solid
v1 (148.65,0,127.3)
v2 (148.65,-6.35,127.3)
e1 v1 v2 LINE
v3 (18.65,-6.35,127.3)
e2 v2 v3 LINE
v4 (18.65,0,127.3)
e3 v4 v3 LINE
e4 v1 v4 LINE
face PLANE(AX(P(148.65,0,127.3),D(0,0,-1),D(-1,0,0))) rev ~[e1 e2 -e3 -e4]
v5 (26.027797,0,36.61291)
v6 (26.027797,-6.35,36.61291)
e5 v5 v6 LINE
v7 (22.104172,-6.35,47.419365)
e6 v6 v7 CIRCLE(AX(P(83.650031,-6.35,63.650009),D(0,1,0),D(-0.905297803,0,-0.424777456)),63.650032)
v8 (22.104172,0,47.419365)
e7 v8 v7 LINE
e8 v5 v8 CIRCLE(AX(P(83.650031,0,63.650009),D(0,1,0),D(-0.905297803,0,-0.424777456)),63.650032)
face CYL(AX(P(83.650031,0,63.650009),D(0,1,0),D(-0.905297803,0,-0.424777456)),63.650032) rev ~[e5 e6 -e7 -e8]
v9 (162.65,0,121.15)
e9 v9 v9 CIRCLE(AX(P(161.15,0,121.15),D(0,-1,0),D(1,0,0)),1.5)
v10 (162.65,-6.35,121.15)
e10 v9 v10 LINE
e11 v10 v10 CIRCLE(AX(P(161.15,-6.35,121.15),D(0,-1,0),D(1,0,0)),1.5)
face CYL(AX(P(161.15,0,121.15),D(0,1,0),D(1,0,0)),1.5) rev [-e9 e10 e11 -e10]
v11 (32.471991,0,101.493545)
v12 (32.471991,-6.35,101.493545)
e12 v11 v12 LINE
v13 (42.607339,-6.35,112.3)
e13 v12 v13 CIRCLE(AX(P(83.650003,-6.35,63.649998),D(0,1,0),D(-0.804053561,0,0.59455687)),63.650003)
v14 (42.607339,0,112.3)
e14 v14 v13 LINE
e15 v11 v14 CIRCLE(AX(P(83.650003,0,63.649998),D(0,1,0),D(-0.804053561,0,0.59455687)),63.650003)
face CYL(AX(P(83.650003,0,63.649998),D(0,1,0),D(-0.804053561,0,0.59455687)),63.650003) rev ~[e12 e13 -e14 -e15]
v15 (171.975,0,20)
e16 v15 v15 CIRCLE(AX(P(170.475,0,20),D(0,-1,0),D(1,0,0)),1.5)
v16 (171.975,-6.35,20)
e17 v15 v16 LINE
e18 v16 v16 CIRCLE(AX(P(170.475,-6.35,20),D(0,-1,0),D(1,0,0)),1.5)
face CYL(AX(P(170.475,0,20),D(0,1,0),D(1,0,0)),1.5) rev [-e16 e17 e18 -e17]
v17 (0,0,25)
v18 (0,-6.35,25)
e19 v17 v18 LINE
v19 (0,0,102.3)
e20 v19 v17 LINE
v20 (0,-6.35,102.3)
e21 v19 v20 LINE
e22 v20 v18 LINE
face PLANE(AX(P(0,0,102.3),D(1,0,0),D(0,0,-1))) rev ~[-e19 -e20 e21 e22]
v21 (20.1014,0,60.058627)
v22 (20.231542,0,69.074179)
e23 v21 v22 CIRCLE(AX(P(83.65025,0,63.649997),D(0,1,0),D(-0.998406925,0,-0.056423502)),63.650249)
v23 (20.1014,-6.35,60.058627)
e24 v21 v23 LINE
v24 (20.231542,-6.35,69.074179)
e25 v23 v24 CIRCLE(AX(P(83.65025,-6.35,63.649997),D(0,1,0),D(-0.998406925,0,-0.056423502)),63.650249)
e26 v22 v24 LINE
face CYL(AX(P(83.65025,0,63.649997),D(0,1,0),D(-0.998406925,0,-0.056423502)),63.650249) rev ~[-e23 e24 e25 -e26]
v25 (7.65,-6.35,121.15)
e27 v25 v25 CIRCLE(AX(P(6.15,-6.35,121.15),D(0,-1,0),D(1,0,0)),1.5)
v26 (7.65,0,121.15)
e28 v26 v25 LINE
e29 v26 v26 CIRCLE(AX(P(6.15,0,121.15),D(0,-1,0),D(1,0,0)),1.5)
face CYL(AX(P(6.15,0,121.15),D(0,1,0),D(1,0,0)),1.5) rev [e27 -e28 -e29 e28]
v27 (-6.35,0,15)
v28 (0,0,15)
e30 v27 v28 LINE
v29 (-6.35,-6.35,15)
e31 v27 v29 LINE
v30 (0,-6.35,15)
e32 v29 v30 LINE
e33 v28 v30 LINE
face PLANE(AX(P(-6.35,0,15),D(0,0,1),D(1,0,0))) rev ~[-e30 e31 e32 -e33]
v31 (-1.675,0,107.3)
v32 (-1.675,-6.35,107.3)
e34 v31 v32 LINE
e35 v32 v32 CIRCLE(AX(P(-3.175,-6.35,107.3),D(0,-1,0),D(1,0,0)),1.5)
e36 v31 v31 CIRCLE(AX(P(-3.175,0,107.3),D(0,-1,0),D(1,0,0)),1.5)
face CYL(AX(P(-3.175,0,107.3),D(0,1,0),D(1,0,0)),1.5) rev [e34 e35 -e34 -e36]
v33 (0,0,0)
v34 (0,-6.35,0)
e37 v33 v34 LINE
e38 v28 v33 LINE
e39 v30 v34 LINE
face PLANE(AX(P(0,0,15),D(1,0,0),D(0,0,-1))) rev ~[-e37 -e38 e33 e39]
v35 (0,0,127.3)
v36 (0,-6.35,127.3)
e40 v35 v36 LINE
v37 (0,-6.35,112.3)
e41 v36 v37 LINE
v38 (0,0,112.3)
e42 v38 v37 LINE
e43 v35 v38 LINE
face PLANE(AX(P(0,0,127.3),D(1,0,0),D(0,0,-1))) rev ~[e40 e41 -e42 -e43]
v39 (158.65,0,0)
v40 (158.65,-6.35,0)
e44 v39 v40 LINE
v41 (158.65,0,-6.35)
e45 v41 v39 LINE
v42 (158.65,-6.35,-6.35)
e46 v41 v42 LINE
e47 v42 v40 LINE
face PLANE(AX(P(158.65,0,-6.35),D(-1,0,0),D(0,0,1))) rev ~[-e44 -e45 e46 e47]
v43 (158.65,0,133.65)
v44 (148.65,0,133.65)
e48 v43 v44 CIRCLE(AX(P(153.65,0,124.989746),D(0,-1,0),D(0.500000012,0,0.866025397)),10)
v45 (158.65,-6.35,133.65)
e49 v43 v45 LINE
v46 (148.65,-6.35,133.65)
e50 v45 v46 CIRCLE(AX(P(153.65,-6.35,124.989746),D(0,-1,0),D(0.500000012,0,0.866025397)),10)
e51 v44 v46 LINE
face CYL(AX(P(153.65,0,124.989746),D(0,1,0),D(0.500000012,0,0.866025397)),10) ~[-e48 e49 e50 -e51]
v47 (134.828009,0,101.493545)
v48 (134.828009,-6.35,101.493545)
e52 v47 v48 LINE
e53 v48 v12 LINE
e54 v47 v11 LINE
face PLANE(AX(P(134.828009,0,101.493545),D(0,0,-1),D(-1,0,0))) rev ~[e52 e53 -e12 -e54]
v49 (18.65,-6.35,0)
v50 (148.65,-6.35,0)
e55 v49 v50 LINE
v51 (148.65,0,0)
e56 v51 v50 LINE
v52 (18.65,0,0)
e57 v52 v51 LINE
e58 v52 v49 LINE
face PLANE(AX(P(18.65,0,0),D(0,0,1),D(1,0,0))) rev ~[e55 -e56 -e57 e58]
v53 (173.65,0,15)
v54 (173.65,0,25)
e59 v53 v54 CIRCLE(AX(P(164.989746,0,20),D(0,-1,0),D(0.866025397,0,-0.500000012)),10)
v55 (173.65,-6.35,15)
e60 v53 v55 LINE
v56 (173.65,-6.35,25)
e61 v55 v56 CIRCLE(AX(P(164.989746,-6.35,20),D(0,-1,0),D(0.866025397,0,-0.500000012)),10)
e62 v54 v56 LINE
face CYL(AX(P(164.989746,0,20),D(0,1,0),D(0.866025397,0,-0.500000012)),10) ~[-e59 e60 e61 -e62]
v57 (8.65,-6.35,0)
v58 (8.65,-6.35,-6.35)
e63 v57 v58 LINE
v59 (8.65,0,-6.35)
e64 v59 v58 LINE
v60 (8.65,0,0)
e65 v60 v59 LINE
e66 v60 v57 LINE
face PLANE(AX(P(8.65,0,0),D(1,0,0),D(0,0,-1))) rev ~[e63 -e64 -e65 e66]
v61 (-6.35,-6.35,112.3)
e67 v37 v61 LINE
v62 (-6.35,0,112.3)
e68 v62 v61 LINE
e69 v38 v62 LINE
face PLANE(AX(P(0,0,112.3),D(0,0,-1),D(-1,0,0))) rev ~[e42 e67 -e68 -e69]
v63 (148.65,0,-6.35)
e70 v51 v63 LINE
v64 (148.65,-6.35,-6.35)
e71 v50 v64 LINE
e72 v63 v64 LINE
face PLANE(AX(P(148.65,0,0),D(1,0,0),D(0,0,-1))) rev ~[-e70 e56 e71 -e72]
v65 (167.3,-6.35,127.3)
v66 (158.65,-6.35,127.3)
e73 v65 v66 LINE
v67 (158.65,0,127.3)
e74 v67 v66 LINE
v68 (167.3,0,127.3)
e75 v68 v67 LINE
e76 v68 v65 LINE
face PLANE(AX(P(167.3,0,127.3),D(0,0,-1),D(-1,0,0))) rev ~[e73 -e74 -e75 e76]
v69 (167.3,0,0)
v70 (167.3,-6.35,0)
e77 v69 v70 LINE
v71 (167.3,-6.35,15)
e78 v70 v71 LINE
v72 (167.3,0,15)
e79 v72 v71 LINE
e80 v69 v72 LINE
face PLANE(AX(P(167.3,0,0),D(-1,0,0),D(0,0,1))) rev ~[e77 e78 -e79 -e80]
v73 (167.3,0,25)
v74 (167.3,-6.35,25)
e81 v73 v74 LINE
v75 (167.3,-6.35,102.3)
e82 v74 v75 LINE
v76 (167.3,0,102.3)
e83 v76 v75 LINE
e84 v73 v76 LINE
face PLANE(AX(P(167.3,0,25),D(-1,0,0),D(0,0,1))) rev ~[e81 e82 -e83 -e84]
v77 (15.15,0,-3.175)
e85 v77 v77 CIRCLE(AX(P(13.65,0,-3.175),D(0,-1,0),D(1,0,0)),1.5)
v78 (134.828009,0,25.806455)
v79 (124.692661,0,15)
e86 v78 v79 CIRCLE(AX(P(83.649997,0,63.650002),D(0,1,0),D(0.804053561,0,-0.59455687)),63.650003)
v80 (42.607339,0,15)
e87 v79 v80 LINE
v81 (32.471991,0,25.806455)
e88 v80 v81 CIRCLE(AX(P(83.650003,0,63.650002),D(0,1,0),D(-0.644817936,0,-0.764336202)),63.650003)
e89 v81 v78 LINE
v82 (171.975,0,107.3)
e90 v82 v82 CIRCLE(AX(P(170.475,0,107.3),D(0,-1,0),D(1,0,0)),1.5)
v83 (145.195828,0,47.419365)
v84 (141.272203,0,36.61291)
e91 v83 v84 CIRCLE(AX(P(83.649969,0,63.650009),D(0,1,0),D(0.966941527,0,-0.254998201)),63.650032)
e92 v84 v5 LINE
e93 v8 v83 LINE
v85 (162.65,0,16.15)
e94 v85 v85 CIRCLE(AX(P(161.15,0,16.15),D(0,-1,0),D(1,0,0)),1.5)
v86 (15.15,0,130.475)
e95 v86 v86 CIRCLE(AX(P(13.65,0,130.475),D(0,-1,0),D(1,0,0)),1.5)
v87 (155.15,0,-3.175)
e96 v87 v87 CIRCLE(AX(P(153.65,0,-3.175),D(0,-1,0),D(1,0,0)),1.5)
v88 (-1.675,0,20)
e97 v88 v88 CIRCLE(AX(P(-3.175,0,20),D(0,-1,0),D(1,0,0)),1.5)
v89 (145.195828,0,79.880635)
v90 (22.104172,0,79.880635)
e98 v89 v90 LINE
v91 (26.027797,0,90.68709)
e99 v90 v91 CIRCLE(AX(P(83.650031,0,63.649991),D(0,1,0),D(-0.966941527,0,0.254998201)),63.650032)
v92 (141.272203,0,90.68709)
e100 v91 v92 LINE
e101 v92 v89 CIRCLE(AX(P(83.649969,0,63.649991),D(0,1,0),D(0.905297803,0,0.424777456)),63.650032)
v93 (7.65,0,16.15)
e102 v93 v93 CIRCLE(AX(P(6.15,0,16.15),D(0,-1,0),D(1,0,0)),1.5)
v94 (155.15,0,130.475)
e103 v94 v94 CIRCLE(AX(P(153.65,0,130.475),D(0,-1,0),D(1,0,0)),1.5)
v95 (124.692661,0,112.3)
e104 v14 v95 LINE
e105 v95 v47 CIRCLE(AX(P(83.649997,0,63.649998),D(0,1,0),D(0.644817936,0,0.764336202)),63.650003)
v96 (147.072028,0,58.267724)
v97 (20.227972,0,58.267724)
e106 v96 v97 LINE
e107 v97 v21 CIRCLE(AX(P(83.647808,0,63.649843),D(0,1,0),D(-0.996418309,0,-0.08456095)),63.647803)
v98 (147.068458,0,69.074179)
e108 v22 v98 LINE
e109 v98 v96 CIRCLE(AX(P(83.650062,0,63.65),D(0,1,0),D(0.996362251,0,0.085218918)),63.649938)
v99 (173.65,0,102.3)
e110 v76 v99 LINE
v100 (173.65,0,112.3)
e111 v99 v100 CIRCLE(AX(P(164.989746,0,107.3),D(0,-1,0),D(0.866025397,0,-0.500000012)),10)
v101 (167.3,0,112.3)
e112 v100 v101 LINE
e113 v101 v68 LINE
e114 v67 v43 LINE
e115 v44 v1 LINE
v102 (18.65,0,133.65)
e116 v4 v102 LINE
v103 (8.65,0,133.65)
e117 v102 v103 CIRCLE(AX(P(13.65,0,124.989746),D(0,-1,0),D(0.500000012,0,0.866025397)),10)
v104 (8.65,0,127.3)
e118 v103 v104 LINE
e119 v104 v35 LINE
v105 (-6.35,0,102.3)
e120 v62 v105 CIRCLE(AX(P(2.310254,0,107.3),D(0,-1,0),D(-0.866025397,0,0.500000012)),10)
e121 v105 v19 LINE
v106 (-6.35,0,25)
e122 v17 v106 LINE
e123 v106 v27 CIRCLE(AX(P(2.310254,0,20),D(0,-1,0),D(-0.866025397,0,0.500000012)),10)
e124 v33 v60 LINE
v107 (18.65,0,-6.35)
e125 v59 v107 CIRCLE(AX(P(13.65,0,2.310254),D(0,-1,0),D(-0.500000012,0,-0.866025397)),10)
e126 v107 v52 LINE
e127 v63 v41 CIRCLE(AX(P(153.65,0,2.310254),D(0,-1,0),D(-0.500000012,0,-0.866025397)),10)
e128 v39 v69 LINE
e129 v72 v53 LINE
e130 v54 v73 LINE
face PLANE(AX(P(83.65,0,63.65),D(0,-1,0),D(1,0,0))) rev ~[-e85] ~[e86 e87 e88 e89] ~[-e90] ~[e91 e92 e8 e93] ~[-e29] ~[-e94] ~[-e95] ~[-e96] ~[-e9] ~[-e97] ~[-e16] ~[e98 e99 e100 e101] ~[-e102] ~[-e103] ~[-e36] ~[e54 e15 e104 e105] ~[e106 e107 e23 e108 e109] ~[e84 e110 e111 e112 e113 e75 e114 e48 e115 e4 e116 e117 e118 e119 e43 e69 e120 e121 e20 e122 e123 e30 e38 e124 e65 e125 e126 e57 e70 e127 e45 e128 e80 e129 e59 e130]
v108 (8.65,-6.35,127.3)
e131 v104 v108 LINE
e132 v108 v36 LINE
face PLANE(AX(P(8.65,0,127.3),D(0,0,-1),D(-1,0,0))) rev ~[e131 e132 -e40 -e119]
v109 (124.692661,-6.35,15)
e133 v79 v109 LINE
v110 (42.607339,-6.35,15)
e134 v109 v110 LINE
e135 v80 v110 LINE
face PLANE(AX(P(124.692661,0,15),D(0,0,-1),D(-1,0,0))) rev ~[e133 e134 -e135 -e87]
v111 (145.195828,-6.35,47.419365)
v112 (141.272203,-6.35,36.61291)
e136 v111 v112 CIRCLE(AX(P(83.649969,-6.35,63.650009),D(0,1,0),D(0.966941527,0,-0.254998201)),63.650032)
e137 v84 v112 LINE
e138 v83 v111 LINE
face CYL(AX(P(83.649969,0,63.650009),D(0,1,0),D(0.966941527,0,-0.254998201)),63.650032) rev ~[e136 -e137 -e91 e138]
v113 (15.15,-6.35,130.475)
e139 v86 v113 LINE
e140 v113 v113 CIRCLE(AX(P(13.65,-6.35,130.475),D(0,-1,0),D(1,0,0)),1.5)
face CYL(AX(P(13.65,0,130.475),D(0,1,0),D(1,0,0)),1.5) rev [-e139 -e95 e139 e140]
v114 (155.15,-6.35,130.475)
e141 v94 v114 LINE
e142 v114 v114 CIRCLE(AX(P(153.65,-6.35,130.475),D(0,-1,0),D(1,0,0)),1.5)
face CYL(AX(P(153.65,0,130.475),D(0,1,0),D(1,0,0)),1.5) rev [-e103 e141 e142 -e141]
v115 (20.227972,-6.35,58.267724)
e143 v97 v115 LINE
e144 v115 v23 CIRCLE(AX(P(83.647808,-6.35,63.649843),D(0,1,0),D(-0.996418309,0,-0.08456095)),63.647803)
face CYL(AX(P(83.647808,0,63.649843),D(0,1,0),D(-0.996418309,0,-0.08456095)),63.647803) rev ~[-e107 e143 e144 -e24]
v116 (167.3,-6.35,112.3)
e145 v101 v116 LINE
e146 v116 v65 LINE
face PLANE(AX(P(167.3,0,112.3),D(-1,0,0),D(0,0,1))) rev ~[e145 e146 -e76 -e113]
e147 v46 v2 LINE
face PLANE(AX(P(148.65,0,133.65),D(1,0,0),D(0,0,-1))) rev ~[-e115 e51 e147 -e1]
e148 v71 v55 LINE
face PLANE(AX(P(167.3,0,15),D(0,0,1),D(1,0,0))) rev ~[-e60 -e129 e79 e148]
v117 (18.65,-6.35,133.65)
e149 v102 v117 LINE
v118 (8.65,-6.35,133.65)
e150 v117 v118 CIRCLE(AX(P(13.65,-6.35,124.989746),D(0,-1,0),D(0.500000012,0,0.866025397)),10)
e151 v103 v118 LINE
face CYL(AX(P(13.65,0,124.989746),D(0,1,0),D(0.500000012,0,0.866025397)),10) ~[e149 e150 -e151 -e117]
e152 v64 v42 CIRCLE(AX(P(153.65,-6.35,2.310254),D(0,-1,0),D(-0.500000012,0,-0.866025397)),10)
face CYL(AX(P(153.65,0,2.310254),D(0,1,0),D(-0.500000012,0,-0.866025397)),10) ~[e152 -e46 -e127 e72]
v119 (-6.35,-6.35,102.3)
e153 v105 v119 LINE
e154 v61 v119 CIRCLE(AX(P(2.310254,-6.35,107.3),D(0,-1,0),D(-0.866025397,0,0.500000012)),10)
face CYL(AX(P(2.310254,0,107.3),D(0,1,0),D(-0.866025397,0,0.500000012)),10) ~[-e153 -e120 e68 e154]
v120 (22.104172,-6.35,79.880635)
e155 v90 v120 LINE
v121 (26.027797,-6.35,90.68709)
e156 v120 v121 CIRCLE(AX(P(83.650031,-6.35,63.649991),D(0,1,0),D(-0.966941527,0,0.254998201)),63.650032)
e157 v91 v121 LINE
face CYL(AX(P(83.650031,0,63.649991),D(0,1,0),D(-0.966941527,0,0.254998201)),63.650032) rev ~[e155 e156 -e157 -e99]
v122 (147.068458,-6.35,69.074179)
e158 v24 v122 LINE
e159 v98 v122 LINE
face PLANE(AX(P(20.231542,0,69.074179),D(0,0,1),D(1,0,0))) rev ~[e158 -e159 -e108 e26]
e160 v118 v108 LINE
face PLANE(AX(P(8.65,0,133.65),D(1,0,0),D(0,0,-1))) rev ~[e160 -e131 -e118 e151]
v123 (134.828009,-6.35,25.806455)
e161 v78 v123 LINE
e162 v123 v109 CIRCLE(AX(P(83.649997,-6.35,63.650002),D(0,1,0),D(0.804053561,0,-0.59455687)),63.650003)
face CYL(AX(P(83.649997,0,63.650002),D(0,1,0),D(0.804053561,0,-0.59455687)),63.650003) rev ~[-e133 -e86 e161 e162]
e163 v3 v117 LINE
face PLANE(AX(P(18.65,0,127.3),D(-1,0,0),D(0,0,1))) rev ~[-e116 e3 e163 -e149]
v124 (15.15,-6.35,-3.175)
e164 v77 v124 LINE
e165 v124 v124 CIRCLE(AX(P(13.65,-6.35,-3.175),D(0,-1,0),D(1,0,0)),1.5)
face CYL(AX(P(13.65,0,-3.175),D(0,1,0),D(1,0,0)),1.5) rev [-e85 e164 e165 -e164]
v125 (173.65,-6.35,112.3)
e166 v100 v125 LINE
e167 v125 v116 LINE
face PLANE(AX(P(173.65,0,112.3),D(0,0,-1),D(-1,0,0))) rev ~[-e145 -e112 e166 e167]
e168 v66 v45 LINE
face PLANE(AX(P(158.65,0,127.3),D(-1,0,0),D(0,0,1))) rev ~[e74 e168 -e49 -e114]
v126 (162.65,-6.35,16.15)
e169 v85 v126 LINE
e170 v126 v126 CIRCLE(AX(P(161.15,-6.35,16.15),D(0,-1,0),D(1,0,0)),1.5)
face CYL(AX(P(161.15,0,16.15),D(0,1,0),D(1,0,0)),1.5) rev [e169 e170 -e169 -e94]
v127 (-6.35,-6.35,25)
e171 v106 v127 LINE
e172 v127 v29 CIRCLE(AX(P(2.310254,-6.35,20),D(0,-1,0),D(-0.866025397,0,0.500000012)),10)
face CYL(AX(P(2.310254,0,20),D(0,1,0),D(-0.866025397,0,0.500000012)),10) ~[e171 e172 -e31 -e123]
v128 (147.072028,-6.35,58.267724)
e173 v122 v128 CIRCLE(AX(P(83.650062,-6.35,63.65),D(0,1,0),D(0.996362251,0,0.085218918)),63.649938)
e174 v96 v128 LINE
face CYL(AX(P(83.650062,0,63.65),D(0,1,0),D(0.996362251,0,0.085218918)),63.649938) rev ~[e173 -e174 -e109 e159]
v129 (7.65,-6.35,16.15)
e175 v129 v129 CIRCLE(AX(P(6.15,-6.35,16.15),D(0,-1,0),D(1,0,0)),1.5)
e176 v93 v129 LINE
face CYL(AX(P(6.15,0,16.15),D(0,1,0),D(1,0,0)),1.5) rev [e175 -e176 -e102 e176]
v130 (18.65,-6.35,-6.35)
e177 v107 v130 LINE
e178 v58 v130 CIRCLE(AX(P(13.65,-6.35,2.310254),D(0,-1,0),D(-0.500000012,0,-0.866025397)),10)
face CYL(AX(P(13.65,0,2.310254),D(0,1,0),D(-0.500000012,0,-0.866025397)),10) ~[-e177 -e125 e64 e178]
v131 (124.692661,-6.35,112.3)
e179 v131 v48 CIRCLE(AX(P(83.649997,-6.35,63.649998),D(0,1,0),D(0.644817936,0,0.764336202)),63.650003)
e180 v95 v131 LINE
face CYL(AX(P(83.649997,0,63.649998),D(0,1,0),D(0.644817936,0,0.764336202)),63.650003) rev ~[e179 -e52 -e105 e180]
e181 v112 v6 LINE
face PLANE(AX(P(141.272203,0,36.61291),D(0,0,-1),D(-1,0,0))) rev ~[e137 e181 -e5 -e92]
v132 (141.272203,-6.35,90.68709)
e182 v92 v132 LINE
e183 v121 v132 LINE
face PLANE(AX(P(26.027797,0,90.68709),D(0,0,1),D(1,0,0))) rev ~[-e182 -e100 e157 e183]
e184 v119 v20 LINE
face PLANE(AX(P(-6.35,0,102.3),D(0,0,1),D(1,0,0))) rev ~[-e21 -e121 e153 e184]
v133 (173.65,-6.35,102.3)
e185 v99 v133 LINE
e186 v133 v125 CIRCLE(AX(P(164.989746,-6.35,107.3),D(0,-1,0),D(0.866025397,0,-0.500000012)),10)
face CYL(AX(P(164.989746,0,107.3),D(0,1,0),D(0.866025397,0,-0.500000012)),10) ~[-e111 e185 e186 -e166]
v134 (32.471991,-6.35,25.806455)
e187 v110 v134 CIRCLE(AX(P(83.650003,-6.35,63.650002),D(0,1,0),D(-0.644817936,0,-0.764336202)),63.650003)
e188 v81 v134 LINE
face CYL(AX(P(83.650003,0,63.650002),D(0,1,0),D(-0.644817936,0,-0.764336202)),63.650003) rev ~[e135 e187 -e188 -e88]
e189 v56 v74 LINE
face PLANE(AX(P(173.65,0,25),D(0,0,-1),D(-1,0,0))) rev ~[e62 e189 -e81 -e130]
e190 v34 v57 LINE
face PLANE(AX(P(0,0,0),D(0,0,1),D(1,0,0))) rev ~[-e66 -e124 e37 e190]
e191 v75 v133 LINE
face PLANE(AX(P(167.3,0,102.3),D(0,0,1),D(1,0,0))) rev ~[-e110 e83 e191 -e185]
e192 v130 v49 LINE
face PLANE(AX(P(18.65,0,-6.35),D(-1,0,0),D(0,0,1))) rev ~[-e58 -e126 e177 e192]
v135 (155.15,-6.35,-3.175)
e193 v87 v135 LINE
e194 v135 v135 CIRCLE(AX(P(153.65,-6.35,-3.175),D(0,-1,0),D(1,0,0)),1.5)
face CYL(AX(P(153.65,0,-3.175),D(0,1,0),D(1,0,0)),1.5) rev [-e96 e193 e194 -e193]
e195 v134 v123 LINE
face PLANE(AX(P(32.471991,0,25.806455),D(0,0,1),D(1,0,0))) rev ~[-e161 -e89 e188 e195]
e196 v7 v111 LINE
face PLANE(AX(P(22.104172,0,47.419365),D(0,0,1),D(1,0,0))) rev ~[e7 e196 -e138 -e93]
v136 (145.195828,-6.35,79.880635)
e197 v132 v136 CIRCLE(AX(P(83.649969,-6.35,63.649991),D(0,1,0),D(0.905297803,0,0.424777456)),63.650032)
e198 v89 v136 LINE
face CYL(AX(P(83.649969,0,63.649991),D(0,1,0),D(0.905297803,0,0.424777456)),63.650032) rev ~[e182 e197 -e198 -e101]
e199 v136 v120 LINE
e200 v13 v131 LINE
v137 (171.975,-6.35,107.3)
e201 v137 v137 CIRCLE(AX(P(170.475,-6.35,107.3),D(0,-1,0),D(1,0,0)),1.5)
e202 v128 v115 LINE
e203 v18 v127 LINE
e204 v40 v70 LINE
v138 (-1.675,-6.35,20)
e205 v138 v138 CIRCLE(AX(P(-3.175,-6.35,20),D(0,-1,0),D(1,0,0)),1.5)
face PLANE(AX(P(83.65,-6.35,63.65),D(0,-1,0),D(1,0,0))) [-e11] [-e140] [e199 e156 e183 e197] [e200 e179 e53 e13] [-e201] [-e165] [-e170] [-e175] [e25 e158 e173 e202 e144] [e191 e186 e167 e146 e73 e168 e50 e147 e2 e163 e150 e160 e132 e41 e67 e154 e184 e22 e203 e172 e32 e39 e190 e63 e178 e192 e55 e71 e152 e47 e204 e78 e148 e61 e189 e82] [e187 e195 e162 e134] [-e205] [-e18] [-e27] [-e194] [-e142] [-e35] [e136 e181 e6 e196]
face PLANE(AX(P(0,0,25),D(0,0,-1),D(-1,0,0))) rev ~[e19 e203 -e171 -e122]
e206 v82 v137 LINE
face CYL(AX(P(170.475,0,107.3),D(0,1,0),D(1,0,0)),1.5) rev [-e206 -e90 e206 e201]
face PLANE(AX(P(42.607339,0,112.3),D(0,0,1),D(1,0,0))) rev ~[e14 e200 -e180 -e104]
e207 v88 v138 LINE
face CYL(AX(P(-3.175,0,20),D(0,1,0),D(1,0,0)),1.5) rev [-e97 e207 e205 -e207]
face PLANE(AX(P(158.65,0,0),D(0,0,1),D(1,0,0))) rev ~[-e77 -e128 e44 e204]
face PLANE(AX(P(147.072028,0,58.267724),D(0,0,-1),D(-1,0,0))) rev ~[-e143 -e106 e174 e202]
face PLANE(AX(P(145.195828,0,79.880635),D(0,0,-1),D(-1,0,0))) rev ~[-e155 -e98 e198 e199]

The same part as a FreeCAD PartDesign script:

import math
import FreeCAD as App
import Part
import Sketcher

V = App.Vector
Q = App.Units.Quantity

doc = App.newDocument("Part")
params = doc.addObject("Spreadsheet::Sheet", "Params")
for row, (alias, value) in enumerate([
    ("sketch1_diameter", "3 mm"),
    ("sketch1_diameter2", "3 mm"),
    ("sketch1_diameter3", "3 mm"),
    ("sketch1_diameter4", "3 mm"),
    ("sketch1_diameter5", "3 mm"),
    ("pad1_length", "6.35 mm"),
], start=1):
    params.set(f"A{row}", alias)
    params.set(f"B{row}", "=" + value)
    params.setAlias(f"B{row}", alias)

body = doc.addObject("PartDesign::Body", "Body")

# Sketch on XZ plane
sketch1 = body.newObject("Sketcher::SketchObject", "Sketch")
sketch1.AttachmentSupport = (doc.getObject("XZ_Plane"), [""])
sketch1.MapMode = "FlatFace"
sketch1.addGeometry(Part.LineSegment(V(0, 15, 0), V(0, 0, 0)), False)
sketch1.addGeometry(Part.LineSegment(V(0, 0, 0), V(8.65, 0, 0)), False)
sketch1.addGeometry(Part.LineSegment(V(8.65, 0, 0), V(8.65, -6.35, 0)), False)
sketch1.addGeometry(Part.ArcOfCircle(Part.Circle(V(13.65, 2.310254, 0), V(0, 0, 1), 10), math.radians(-120.000001), math.radians(-59.999999)), False)
sketch1.addGeometry(Part.LineSegment(V(18.65, -6.35, 0), V(18.65, 0, 0)), False)
sketch1.addGeometry(Part.LineSegment(V(18.65, 0, 0), V(148.65, 0, 0)), False)
sketch1.addGeometry(Part.LineSegment(V(148.65, 0, 0), V(148.65, -6.35, 0)), False)
sketch1.addGeometry(Part.ArcOfCircle(Part.Circle(V(153.65, 2.310254, 0), V(0, 0, 1), 10), math.radians(-120.000001), math.radians(-59.999999)), False)
sketch1.addGeometry(Part.LineSegment(V(158.65, -6.35, 0), V(158.65, 0, 0)), False)
sketch1.addGeometry(Part.LineSegment(V(158.65, 0, 0), V(167.3, 0, 0)), False)
sketch1.addGeometry(Part.LineSegment(V(167.3, 0, 0), V(167.3, 15, 0)), False)
sketch1.addGeometry(Part.LineSegment(V(167.3, 15, 0), V(173.65, 15, 0)), False)
sketch1.addGeometry(Part.ArcOfCircle(Part.Circle(V(164.989746, 20, 0), V(0, 0, 1), 10), math.radians(-30.000001), math.radians(30.000001)), False)
sketch1.addGeometry(Part.LineSegment(V(173.65, 25, 0), V(167.3, 25, 0)), False)
sketch1.addGeometry(Part.LineSegment(V(167.3, 25, 0), V(167.3, 102.3, 0)), False)
sketch1.addGeometry(Part.LineSegment(V(167.3, 102.3, 0), V(173.65, 102.3, 0)), False)
sketch1.addGeometry(Part.ArcOfCircle(Part.Circle(V(164.989746, 107.3, 0), V(0, 0, 1), 10), math.radians(-30.000001), math.radians(30.000001)), False)
sketch1.addGeometry(Part.LineSegment(V(173.65, 112.3, 0), V(167.3, 112.3, 0)), False)
sketch1.addGeometry(Part.LineSegment(V(167.3, 112.3, 0), V(167.3, 127.3, 0)), False)
sketch1.addGeometry(Part.LineSegment(V(167.3, 127.3, 0), V(158.65, 127.3, 0)), False)
sketch1.addGeometry(Part.LineSegment(V(158.65, 127.3, 0), V(158.65, 133.65, 0)), False)
sketch1.addGeometry(Part.ArcOfCircle(Part.Circle(V(153.65, 124.989746, 0), V(0, 0, 1), 10), math.radians(59.999999), math.radians(120.000001)), False)
sketch1.addGeometry(Part.LineSegment(V(148.65, 133.65, 0), V(148.65, 127.3, 0)), False)
sketch1.addGeometry(Part.LineSegment(V(148.65, 127.3, 0), V(18.65, 127.3, 0)), False)
sketch1.addGeometry(Part.LineSegment(V(18.65, 127.3, 0), V(18.65, 133.65, 0)), False)
sketch1.addGeometry(Part.ArcOfCircle(Part.Circle(V(13.65, 124.989746, 0), V(0, 0, 1), 10), math.radians(59.999999), math.radians(120.000001)), False)
sketch1.addGeometry(Part.LineSegment(V(8.65, 133.65, 0), V(8.65, 127.3, 0)), False)
sketch1.addGeometry(Part.LineSegment(V(8.65, 127.3, 0), V(0, 127.3, 0)), False)
sketch1.addGeometry(Part.LineSegment(V(0, 127.3, 0), V(0, 112.3, 0)), False)
sketch1.addGeometry(Part.LineSegment(V(0, 112.3, 0), V(-6.35, 112.3, 0)), False)
sketch1.addGeometry(Part.ArcOfCircle(Part.Circle(V(2.310254, 107.3, 0), V(0, 0, 1), 10), math.radians(149.999999), math.radians(210.000001)), False)
sketch1.addGeometry(Part.LineSegment(V(-6.35, 102.3, 0), V(0, 102.3, 0)), False)
sketch1.addGeometry(Part.LineSegment(V(0, 102.3, 0), V(0, 25, 0)), False)
sketch1.addGeometry(Part.LineSegment(V(0, 25, 0), V(-6.35, 25, 0)), False)
sketch1.addGeometry(Part.ArcOfCircle(Part.Circle(V(2.310254, 20, 0), V(0, 0, 1), 10), math.radians(149.999999), math.radians(210.000001)), False)
sketch1.addGeometry(Part.LineSegment(V(-6.35, 15, 0), V(0, 15, 0)), False)
sketch1.addGeometry(Part.Circle(V(13.65, -3.175, 0), V(0, 0, 1), 1.5), False)
sketch1.addGeometry(Part.Circle(V(6.15, 16.15, 0), V(0, 0, 1), 1.5), False)
sketch1.addGeometry(Part.Circle(V(-3.175, 20, 0), V(0, 0, 1), 1.5), False)
sketch1.addGeometry(Part.ArcOfCircle(Part.Circle(V(83.650003, 63.650002, 0), V(0, 0, 1), 63.650003), math.radians(-143.518951), math.radians(-130.152026)), False)
sketch1.addGeometry(Part.LineSegment(V(32.471991, 25.806455, 0), V(134.828009, 25.806455, 0)), False)
sketch1.addGeometry(Part.ArcOfCircle(Part.Circle(V(83.649997, 63.650002, 0), V(0, 0, 1), 63.650003), math.radians(-49.847974), math.radians(-36.481049)), False)
sketch1.addGeometry(Part.LineSegment(V(124.692661, 15, 0), V(42.607339, 15, 0)), False)
sketch1.addGeometry(Part.Circle(V(153.65, -3.175, 0), V(0, 0, 1), 1.5), False)
sketch1.addGeometry(Part.Circle(V(161.15, 16.15, 0), V(0, 0, 1), 1.5), False)
sketch1.addGeometry(Part.Circle(V(170.475, 20, 0), V(0, 0, 1), 1.5), False)
sketch1.addGeometry(Part.ArcOfCircle(Part.Circle(V(83.650031, 63.650009, 0), V(0, 0, 1), 63.650032), math.radians(-165.226521), math.radians(-154.863422)), False)
sketch1.addGeometry(Part.LineSegment(V(22.104172, 47.419365, 0), V(145.195828, 47.419365, 0)), False)
sketch1.addGeometry(Part.ArcOfCircle(Part.Circle(V(83.649969, 63.650009, 0), V(0, 0, 1), 63.650032), math.radians(-25.136578), math.radians(-14.773479)), False)
sketch1.addGeometry(Part.LineSegment(V(141.272203, 36.61291, 0), V(26.027797, 36.61291, 0)), False)
sketch1.addGeometry(Part.Circle(V(-3.175, 107.3, 0), V(0, 0, 1), 1.5), False)
sketch1.addGeometry(Part.Circle(V(6.15, 121.15, 0), V(0, 0, 1), 1.5), False)
sketch1.addGeometry(Part.Circle(V(13.65, 130.475, 0), V(0, 0, 1), 1.5), False)
sketch1.addGeometry(Part.ArcOfCircle(Part.Circle(V(83.647808, 63.649843, 0), V(0, 0, 1), 63.647803), math.radians(-176.765468), math.radians(-175.149222)), False)
sketch1.addGeometry(Part.ArcOfCircle(Part.Circle(V(83.65025, 63.649997, 0), V(0, 0, 1), 63.650249), math.radians(175.111408), math.radians(183.234546)), False)
sketch1.addGeometry(Part.LineSegment(V(20.231542, 69.074179, 0), V(147.068458, 69.074179, 0)), False)
sketch1.addGeometry(Part.ArcOfCircle(Part.Circle(V(83.650062, 63.65, 0), V(0, 0, 1), 63.649938), math.radians(-4.850757), math.radians(4.888614)), False)
sketch1.addGeometry(Part.LineSegment(V(147.072028, 58.267724, 0), V(20.227972, 58.267724, 0)), False)
sketch1.addGeometry(Part.LineSegment(V(145.195828, 79.880635, 0), V(22.104172, 79.880635, 0)), False)
sketch1.addGeometry(Part.ArcOfCircle(Part.Circle(V(83.650031, 63.649991, 0), V(0, 0, 1), 63.650032), math.radians(154.863422), math.radians(165.226521)), False)
sketch1.addGeometry(Part.LineSegment(V(26.027797, 90.68709, 0), V(141.272203, 90.68709, 0)), False)
sketch1.addGeometry(Part.ArcOfCircle(Part.Circle(V(83.649969, 63.649991, 0), V(0, 0, 1), 63.650032), math.radians(14.773479), math.radians(25.136578)), False)
sketch1.addGeometry(Part.LineSegment(V(134.828009, 101.493545, 0), V(32.471991, 101.493545, 0)), False)
sketch1.addGeometry(Part.ArcOfCircle(Part.Circle(V(83.650003, 63.649998, 0), V(0, 0, 1), 63.650003), math.radians(130.152026), math.radians(143.518951)), False)
sketch1.addGeometry(Part.LineSegment(V(42.607339, 112.3, 0), V(124.692661, 112.3, 0)), False)
sketch1.addGeometry(Part.ArcOfCircle(Part.Circle(V(83.649997, 63.649998, 0), V(0, 0, 1), 63.650003), math.radians(36.481049), math.radians(49.847974)), False)
sketch1.addGeometry(Part.Circle(V(170.475, 107.3, 0), V(0, 0, 1), 1.5), False)
sketch1.addGeometry(Part.Circle(V(161.15, 121.15, 0), V(0, 0, 1), 1.5), False)
sketch1.addGeometry(Part.Circle(V(153.65, 130.475, 0), V(0, 0, 1), 1.5), False)
sketch1.addConstraint(Sketcher.Constraint("Coincident", 0, 2, 1, 1))
sketch1.addConstraint(Sketcher.Constraint("Coincident", 1, 2, 2, 1))
sketch1.addConstraint(Sketcher.Constraint("Coincident", 2, 2, 3, 1))
sketch1.addConstraint(Sketcher.Constraint("Coincident", 3, 2, 4, 1))
sketch1.addConstraint(Sketcher.Constraint("Coincident", 4, 2, 5, 1))
sketch1.addConstraint(Sketcher.Constraint("Coincident", 5, 2, 6, 1))
sketch1.addConstraint(Sketcher.Constraint("Coincident", 6, 2, 7, 1))
sketch1.addConstraint(Sketcher.Constraint("Coincident", 7, 2, 8, 1))
sketch1.addConstraint(Sketcher.Constraint("Coincident", 8, 2, 9, 1))
sketch1.addConstraint(Sketcher.Constraint("Coincident", 9, 2, 10, 1))
sketch1.addConstraint(Sketcher.Constraint("Coincident", 10, 2, 11, 1))
sketch1.addConstraint(Sketcher.Constraint("Coincident", 11, 2, 12, 1))
sketch1.addConstraint(Sketcher.Constraint("Coincident", 12, 2, 13, 1))
sketch1.addConstraint(Sketcher.Constraint("Coincident", 13, 2, 14, 1))
sketch1.addConstraint(Sketcher.Constraint("Coincident", 14, 2, 15, 1))
sketch1.addConstraint(Sketcher.Constraint("Coincident", 15, 2, 16, 1))
sketch1.addConstraint(Sketcher.Constraint("Coincident", 16, 2, 17, 1))
sketch1.addConstraint(Sketcher.Constraint("Coincident", 17, 2, 18, 1))
sketch1.addConstraint(Sketcher.Constraint("Coincident", 18, 2, 19, 1))
sketch1.addConstraint(Sketcher.Constraint("Coincident", 19, 2, 20, 1))
sketch1.addConstraint(Sketcher.Constraint("Coincident", 20, 2, 21, 1))
sketch1.addConstraint(Sketcher.Constraint("Coincident", 21, 2, 22, 1))
sketch1.addConstraint(Sketcher.Constraint("Coincident", 22, 2, 23, 1))
sketch1.addConstraint(Sketcher.Constraint("Coincident", 23, 2, 24, 1))
sketch1.addConstraint(Sketcher.Constraint("Coincident", 24, 2, 25, 1))
sketch1.addConstraint(Sketcher.Constraint("Coincident", 25, 2, 26, 1))
sketch1.addConstraint(Sketcher.Constraint("Coincident", 26, 2, 27, 1))
sketch1.addConstraint(Sketcher.Constraint("Coincident", 27, 2, 28, 1))
sketch1.addConstraint(Sketcher.Constraint("Coincident", 28, 2, 29, 1))
sketch1.addConstraint(Sketcher.Constraint("Coincident", 29, 2, 30, 1))
sketch1.addConstraint(Sketcher.Constraint("Coincident", 30, 2, 31, 1))
sketch1.addConstraint(Sketcher.Constraint("Coincident", 31, 2, 32, 1))
sketch1.addConstraint(Sketcher.Constraint("Coincident", 32, 2, 33, 1))
sketch1.addConstraint(Sketcher.Constraint("Coincident", 33, 2, 34, 1))
sketch1.addConstraint(Sketcher.Constraint("Coincident", 34, 2, 35, 1))
sketch1.addConstraint(Sketcher.Constraint("Coincident", 35, 2, 0, 1))
sketch1.addConstraint(Sketcher.Constraint("Coincident", 39, 1, 40, 1))
sketch1.addConstraint(Sketcher.Constraint("Coincident", 40, 2, 41, 2))
sketch1.addConstraint(Sketcher.Constraint("Coincident", 41, 1, 42, 1))
sketch1.addConstraint(Sketcher.Constraint("Coincident", 42, 2, 39, 2))
sketch1.addConstraint(Sketcher.Constraint("Coincident", 46, 1, 47, 1))
sketch1.addConstraint(Sketcher.Constraint("Coincident", 47, 2, 48, 2))
sketch1.addConstraint(Sketcher.Constraint("Coincident", 48, 1, 49, 1))
sketch1.addConstraint(Sketcher.Constraint("Coincident", 49, 2, 46, 2))
sketch1.addConstraint(Sketcher.Constraint("Coincident", 53, 1, 54, 2))
sketch1.addConstraint(Sketcher.Constraint("Coincident", 54, 1, 55, 1))
sketch1.addConstraint(Sketcher.Constraint("Coincident", 55, 2, 56, 2))
sketch1.addConstraint(Sketcher.Constraint("Coincident", 56, 1, 57, 1))
sketch1.addConstraint(Sketcher.Constraint("Coincident", 57, 2, 53, 2))
sketch1.addConstraint(Sketcher.Constraint("Coincident", 58, 2, 59, 2))
sketch1.addConstraint(Sketcher.Constraint("Coincident", 59, 1, 60, 1))
sketch1.addConstraint(Sketcher.Constraint("Coincident", 60, 2, 61, 2))
sketch1.addConstraint(Sketcher.Constraint("Coincident", 61, 1, 58, 1))
sketch1.addConstraint(Sketcher.Constraint("Coincident", 62, 2, 63, 2))
sketch1.addConstraint(Sketcher.Constraint("Coincident", 63, 1, 64, 1))
sketch1.addConstraint(Sketcher.Constraint("Coincident", 64, 2, 65, 2))
sketch1.addConstraint(Sketcher.Constraint("Coincident", 65, 1, 62, 1))
sketch1.addConstraint(Sketcher.Constraint("Vertical", 0))
sketch1.addConstraint(Sketcher.Constraint("Horizontal", 1))
sketch1.addConstraint(Sketcher.Constraint("Vertical", 2))
sketch1.addConstraint(Sketcher.Constraint("Vertical", 4))
sketch1.addConstraint(Sketcher.Constraint("Horizontal", 5))
sketch1.addConstraint(Sketcher.Constraint("Vertical", 6))
sketch1.addConstraint(Sketcher.Constraint("Vertical", 8))
sketch1.addConstraint(Sketcher.Constraint("Horizontal", 9))
sketch1.addConstraint(Sketcher.Constraint("Vertical", 10))
sketch1.addConstraint(Sketcher.Constraint("Horizontal", 11))
sketch1.addConstraint(Sketcher.Constraint("Horizontal", 13))
sketch1.addConstraint(Sketcher.Constraint("Vertical", 14))
sketch1.addConstraint(Sketcher.Constraint("Horizontal", 15))
sketch1.addConstraint(Sketcher.Constraint("Horizontal", 17))
sketch1.addConstraint(Sketcher.Constraint("Vertical", 18))
sketch1.addConstraint(Sketcher.Constraint("Horizontal", 19))
sketch1.addConstraint(Sketcher.Constraint("Vertical", 20))
sketch1.addConstraint(Sketcher.Constraint("Vertical", 22))
sketch1.addConstraint(Sketcher.Constraint("Horizontal", 23))
sketch1.addConstraint(Sketcher.Constraint("Vertical", 24))
sketch1.addConstraint(Sketcher.Constraint("Vertical", 26))
sketch1.addConstraint(Sketcher.Constraint("Horizontal", 27))
sketch1.addConstraint(Sketcher.Constraint("Vertical", 28))
sketch1.addConstraint(Sketcher.Constraint("Horizontal", 29))
sketch1.addConstraint(Sketcher.Constraint("Horizontal", 31))
sketch1.addConstraint(Sketcher.Constraint("Vertical", 32))
sketch1.addConstraint(Sketcher.Constraint("Horizontal", 33))
sketch1.addConstraint(Sketcher.Constraint("Horizontal", 35))
sketch1.addConstraint(Sketcher.Constraint("Horizontal", 40))
sketch1.addConstraint(Sketcher.Constraint("Horizontal", 42))
sketch1.addConstraint(Sketcher.Constraint("Horizontal", 47))
sketch1.addConstraint(Sketcher.Constraint("Horizontal", 49))
sketch1.addConstraint(Sketcher.Constraint("Horizontal", 55))
sketch1.addConstraint(Sketcher.Constraint("Horizontal", 57))
sketch1.addConstraint(Sketcher.Constraint("Horizontal", 58))
sketch1.addConstraint(Sketcher.Constraint("Horizontal", 60))
sketch1.addConstraint(Sketcher.Constraint("Horizontal", 62))
sketch1.addConstraint(Sketcher.Constraint("Horizontal", 64))
sketch1.addConstraint(Sketcher.Constraint("Coincident", 0, 2, -1, 1))
sketch1.addConstraint(Sketcher.Constraint("Coincident", 41, 3, 39, 3))
sketch1.addConstraint(Sketcher.Constraint("Coincident", 63, 3, 39, 3))
sketch1.addConstraint(Sketcher.Constraint("Coincident", 65, 3, 39, 3))
sketch1.addConstraint(Sketcher.Constraint("PointOnObject", 4, 2, -1))
sketch1.addConstraint(Sketcher.Constraint("PointOnObject", 8, 2, -1))
sketch1.addConstraint(Sketcher.Constraint("PointOnObject", 27, 2, -2))
sketch1.addConstraint(Sketcher.Constraint("PointOnObject", 31, 2, -2))
sketch1.addConstraint(Sketcher.Constraint("Diameter", 36, Q("3 mm")))
sketch1.addConstraint(Sketcher.Constraint("Diameter", 37, Q("3 mm")))
sketch1.addConstraint(Sketcher.Constraint("Diameter", 38, Q("3 mm")))
sketch1.addConstraint(Sketcher.Constraint("Diameter", 43, Q("3 mm")))
sketch1.addConstraint(Sketcher.Constraint("Diameter", 44, Q("3 mm")))
sketch1.addConstraint(Sketcher.Constraint("Diameter", 45, Q("3 mm")))
sketch1.addConstraint(Sketcher.Constraint("Diameter", 50, Q("3 mm")))
sketch1.addConstraint(Sketcher.Constraint("Diameter", 51, Q("3 mm")))
sketch1.addConstraint(Sketcher.Constraint("Diameter", 52, Q("3 mm")))
sketch1.addConstraint(Sketcher.Constraint("Diameter", 66, Q("3 mm")))
sketch1.addConstraint(Sketcher.Constraint("Diameter", 67, Q("3 mm")))
sketch1.addConstraint(Sketcher.Constraint("Diameter", 68, Q("3 mm")))
sketch1.addConstraint(Sketcher.Constraint("Radius", 3, Q("10 mm")))
sketch1.addConstraint(Sketcher.Constraint("Radius", 7, Q("10 mm")))
sketch1.addConstraint(Sketcher.Constraint("Radius", 12, Q("10 mm")))
sketch1.addConstraint(Sketcher.Constraint("Radius", 16, Q("10 mm")))
sketch1.addConstraint(Sketcher.Constraint("Radius", 21, Q("10 mm")))
sketch1.addConstraint(Sketcher.Constraint("Radius", 25, Q("10 mm")))
sketch1.addConstraint(Sketcher.Constraint("Radius", 30, Q("10 mm")))
sketch1.addConstraint(Sketcher.Constraint("Radius", 34, Q("10 mm")))
sketch1.addConstraint(Sketcher.Constraint("DistanceX", 5, 1, 5, 2, Q("130 mm")))
sketch1.addConstraint(Sketcher.Constraint("DistanceX", 23, 2, 23, 1, Q("130 mm")))
sketch1.addConstraint(Sketcher.Constraint("DistanceY", 0, 2, 0, 1, Q("15 mm")))
sketch1.addConstraint(Sketcher.Constraint("DistanceY", 10, 1, 10, 2, Q("15 mm")))
sketch1.addConstraint(Sketcher.Constraint("DistanceY", 18, 1, 18, 2, Q("15 mm")))
sketch1.addConstraint(Sketcher.Constraint("DistanceY", 28, 2, 28, 1, Q("15 mm")))
sketch1.addConstraint(Sketcher.Constraint("DistanceY", 14, 1, 14, 2, Q("77.3 mm")))
sketch1.addConstraint(Sketcher.Constraint("DistanceY", 32, 2, 32, 1, Q("77.3 mm")))
sketch1.addConstraint(Sketcher.Constraint("DistanceY", -1, 1, 12, 3, Q("20 mm")))
sketch1.addConstraint(Sketcher.Constraint("DistanceY", -1, 1, 34, 3, Q("20 mm")))
sketch1.addConstraint(Sketcher.Constraint("DistanceY", -1, 1, 38, 3, Q("20 mm")))
sketch1.addConstraint(Sketcher.Constraint("DistanceY", -1, 1, 45, 3, Q("20 mm")))
sketch1.addConstraint(Sketcher.Constraint("DistanceY", -1, 1, 12, 2, Q("25 mm")))
sketch1.addConstraint(Sketcher.Constraint("DistanceY", -1, 1, 32, 2, Q("25 mm")))
sketch1.addConstraint(Sketcher.Constraint("DistanceY", -1, 1, 41, 1, Q("15 mm")))
sketch1.addConstraint(Sketcher.Constraint("DistanceX", 1, 1, 1, 2, Q("8.65 mm")))
sketch1.addConstraint(Sketcher.Constraint("DistanceX", 9, 1, 9, 2, Q("8.65 mm")))
sketch1.addConstraint(Sketcher.Constraint("DistanceX", 11, 1, 11, 2, Q("6.35 mm")))
sketch1.addConstraint(Sketcher.Constraint("DistanceX", 13, 2, 13, 1, Q("6.35 mm")))
sketch1.addConstraint(Sketcher.Constraint("DistanceX", 15, 1, 15, 2, Q("6.35 mm")))
sketch1.addConstraint(Sketcher.Constraint("DistanceX", 17, 2, 17, 1, Q("6.35 mm")))
sketch1.addConstraint(Sketcher.Constraint("DistanceX", 19, 2, 19, 1, Q("8.65 mm")))
sketch1.addConstraint(Sketcher.Constraint("DistanceX", 27, 2, 27, 1, Q("8.65 mm")))
sketch1.addConstraint(Sketcher.Constraint("DistanceX", 29, 2, 29, 1, Q("6.35 mm")))
sketch1.addConstraint(Sketcher.Constraint("DistanceX", 31, 1, 31, 2, Q("6.35 mm")))
sketch1.addConstraint(Sketcher.Constraint("DistanceX", 33, 2, 33, 1, Q("6.35 mm")))
sketch1.addConstraint(Sketcher.Constraint("DistanceY", 2, 2, 2, 1, Q("6.35 mm")))
sketch1.addConstraint(Sketcher.Constraint("DistanceY", 4, 1, 4, 2, Q("6.35 mm")))
sketch1.addConstraint(Sketcher.Constraint("DistanceY", 6, 2, 6, 1, Q("6.35 mm")))
sketch1.addConstraint(Sketcher.Constraint("DistanceY", 8, 1, 8, 2, Q("6.35 mm")))
sketch1.addConstraint(Sketcher.Constraint("DistanceY", 20, 1, 20, 2, Q("6.35 mm")))
sketch1.addConstraint(Sketcher.Constraint("DistanceY", 22, 2, 22, 1, Q("6.35 mm")))
sketch1.addConstraint(Sketcher.Constraint("DistanceY", 24, 1, 24, 2, Q("6.35 mm")))
sketch1.addConstraint(Sketcher.Constraint("DistanceY", 26, 2, 26, 1, Q("6.35 mm")))
sketch1.addConstraint(Sketcher.Constraint("DistanceY", -1, 1, 16, 3, Q("107.3 mm")))
sketch1.addConstraint(Sketcher.Constraint("DistanceY", -1, 1, 30, 3, Q("107.3 mm")))
sketch1.addConstraint(Sketcher.Constraint("DistanceY", -1, 1, 50, 3, Q("107.3 mm")))
sketch1.addConstraint(Sketcher.Constraint("DistanceY", -1, 1, 66, 3, Q("107.3 mm")))
sketch1.addConstraint(Sketcher.Constraint("DistanceX", -1, 1, 9, 2, Q("167.3 mm")))
sketch1.addConstraint(Sketcher.Constraint("DistanceY", -1, 1, 16, 2, Q("112.3 mm")))
sketch1.addConstraint(Sketcher.Constraint("DistanceY", -1, 1, 22, 2, Q("127.3 mm")))
sketch1.addConstraint(Sketcher.Constraint("DistanceY", -1, 1, 63, 1, Q("112.3 mm")))
sketch1.addConstraint(Sketcher.Constraint("DistanceX", -1, 1, 3, 3, Q("13.65 mm")))
sketch1.addConstraint(Sketcher.Constraint("DistanceX", -1, 1, 21, 3, Q("153.65 mm")))
sketch1.addConstraint(Sketcher.Constraint("DistanceX", -1, 1, 36, 3, Q("13.65 mm")))
sketch1.addConstraint(Sketcher.Constraint("DistanceX", -1, 1, 37, 3, Q("6.15 mm")))
sketch1.addConstraint(Sketcher.Constraint("DistanceY", -1, 1, 37, 3, Q("16.15 mm")))
sketch1.addConstraint(Sketcher.Constraint("DistanceY", -1, 1, 39, 3, Q("63.650002 mm")))
sketch1.addConstraint(Sketcher.Constraint("DistanceX", -1, 1, 43, 3, Q("153.65 mm")))
sketch1.addConstraint(Sketcher.Constraint("DistanceX", -1, 1, 44, 3, Q("161.15 mm")))
sketch1.addConstraint(Sketcher.Constraint("DistanceY", -1, 1, 44, 3, Q("16.15 mm")))
sketch1.addConstraint(Sketcher.Constraint("DistanceX", -1, 1, 51, 3, Q("6.15 mm")))
sketch1.addConstraint(Sketcher.Constraint("DistanceY", -1, 1, 51, 3, Q("121.15 mm")))
sketch1.addConstraint(Sketcher.Constraint("DistanceX", -1, 1, 52, 3, Q("13.65 mm")))
sketch1.addConstraint(Sketcher.Constraint("DistanceY", -1, 1, 56, 3, Q("63.65 mm")))
sketch1.addConstraint(Sketcher.Constraint("DistanceX", -1, 1, 67, 3, Q("161.15 mm")))
sketch1.addConstraint(Sketcher.Constraint("DistanceY", -1, 1, 67, 3, Q("121.15 mm")))
sketch1.addConstraint(Sketcher.Constraint("DistanceX", -1, 1, 68, 3, Q("153.65 mm")))
sketch1.addConstraint(Sketcher.Constraint("Radius", 46, Q("63.650032 mm")))
sketch1.addConstraint(Sketcher.Constraint("Radius", 48, Q("63.650032 mm")))
sketch1.addConstraint(Sketcher.Constraint("Radius", 54, Q("63.650249 mm")))
sketch1.addConstraint(Sketcher.Constraint("Radius", 56, Q("63.649938 mm")))
sketch1.addConstraint(Sketcher.Constraint("Radius", 59, Q("63.650032 mm")))
sketch1.addConstraint(Sketcher.Constraint("Radius", 61, Q("63.650032 mm")))
sketch1.addConstraint(Sketcher.Constraint("DistanceY", 36, 3, -1, 1, Q("3.175 mm")))
sketch1.addConstraint(Sketcher.Constraint("DistanceX", 38, 3, -1, 1, Q("3.175 mm")))
sketch1.addConstraint(Sketcher.Constraint("DistanceY", 43, 3, -1, 1, Q("3.175 mm")))
sketch1.addConstraint(Sketcher.Constraint("DistanceX", -1, 1, 45, 3, Q("170.475 mm")))
sketch1.addConstraint(Sketcher.Constraint("DistanceX", 50, 3, -1, 1, Q("3.175 mm")))
sketch1.addConstraint(Sketcher.Constraint("DistanceY", -1, 1, 52, 3, Q("130.475 mm")))
sketch1.addConstraint(Sketcher.Constraint("DistanceX", -1, 1, 66, 3, Q("170.475 mm")))
sketch1.addConstraint(Sketcher.Constraint("DistanceY", -1, 1, 68, 3, Q("130.475 mm")))
sketch1.addConstraint(Sketcher.Constraint("Radius", 39, Q("63.650003 mm")))
sketch1.addConstraint(Sketcher.Constraint("Radius", 41, Q("63.650003 mm")))
sketch1.addConstraint(Sketcher.Constraint("Radius", 53, Q("63.647803 mm")))
sketch1.addConstraint(Sketcher.Constraint("Radius", 63, Q("63.650003 mm")))
sketch1.addConstraint(Sketcher.Constraint("Radius", 65, Q("63.650003 mm")))
sketch1.addConstraint(Sketcher.Constraint("DistanceX", 40, 1, 40, 2, Q("102.356018 mm")))
sketch1.addConstraint(Sketcher.Constraint("DistanceX", 62, 2, 62, 1, Q("102.356018 mm")))
sketch1.addConstraint(Sketcher.Constraint("DistanceX", -1, 1, 53, 1, Q("20.1014 mm")))
sketch1.addConstraint(Sketcher.Constraint("DistanceX", 47, 1, 47, 2, Q("123.091656 mm")))
sketch1.addConstraint(Sketcher.Constraint("DistanceX", 49, 2, 49, 1, Q("115.244406 mm")))
sketch1.addConstraint(Sketcher.Constraint("DistanceX", 55, 1, 55, 2, Q("126.836916 mm")))
sketch1.addConstraint(Sketcher.Constraint("DistanceX", 57, 2, 57, 1, Q("126.844056 mm")))
sketch1.addConstraint(Sketcher.Constraint("DistanceX", 58, 2, 58, 1, Q("123.091656 mm")))
sketch1.addConstraint(Sketcher.Constraint("DistanceX", 60, 1, 60, 2, Q("115.244406 mm")))
sketch1.addConstraint(Sketcher.Constraint("DistanceX", -1, 1, 46, 3, Q("83.650031 mm")))
sketch1.addConstraint(Sketcher.Constraint("DistanceY", -1, 1, 46, 3, Q("63.650009 mm")))
sketch1.addConstraint(Sketcher.Constraint("DistanceX", -1, 1, 48, 3, Q("83.649969 mm")))
sketch1.addConstraint(Sketcher.Constraint("DistanceY", -1, 1, 48, 3, Q("63.650009 mm")))
sketch1.addConstraint(Sketcher.Constraint("DistanceX", -1, 1, 53, 3, Q("83.647808 mm")))
sketch1.addConstraint(Sketcher.Constraint("DistanceX", -1, 1, 54, 3, Q("83.65025 mm")))
sketch1.addConstraint(Sketcher.Constraint("DistanceX", -1, 1, 59, 3, Q("83.650031 mm")))
sketch1.addConstraint(Sketcher.Constraint("DistanceY", -1, 1, 59, 3, Q("63.649991 mm")))
sketch1.addConstraint(Sketcher.Constraint("DistanceX", -1, 1, 61, 3, Q("83.649969 mm")))
sketch1.addConstraint(Sketcher.Constraint("DistanceY", -1, 1, 61, 3, Q("63.649991 mm")))
sketch1.addConstraint(Sketcher.Constraint("DistanceX", -1, 1, 39, 1, Q("32.471991 mm")))
sketch1.addConstraint(Sketcher.Constraint("DistanceX", -1, 1, 54, 1, Q("20.231542 mm")))
sketch1.addConstraint(Sketcher.Constraint("DistanceY", -1, 1, 54, 1, Q("69.074179 mm")))
sketch1.setExpression("Constraints[103]", "Params.sketch1_diameter")
sketch1.setExpression("Constraints[104]", "Params.sketch1_diameter2")
sketch1.setExpression("Constraints[105]", "Params.sketch1_diameter3")
sketch1.setExpression("Constraints[106]", "Params.sketch1_diameter4")
sketch1.setExpression("Constraints[107]", "Params.sketch1_diameter5")
pad1 = body.newObject("PartDesign::Pad", "Pad")
pad1.Profile = sketch1
pad1.setExpression("Length", "Params.pad1_length")

doc.recompute()
